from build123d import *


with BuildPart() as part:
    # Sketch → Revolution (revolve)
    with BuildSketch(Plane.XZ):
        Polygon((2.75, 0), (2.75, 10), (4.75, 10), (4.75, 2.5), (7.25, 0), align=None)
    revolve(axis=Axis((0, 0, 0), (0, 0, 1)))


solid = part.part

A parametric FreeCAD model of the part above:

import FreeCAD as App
import Part
import Sketcher
from FreeCAD import Vector
Q = App.Units.Quantity

doc = App.newDocument("Part")
body = doc.addObject("PartDesign::Body", "Body")

# Sketch on XZ plane
sketch1 = body.newObject("Sketcher::SketchObject", "Sketch")
sketch1.AttachmentSupport = (doc.getObject("XZ_Plane"), [""])
sketch1.MapMode = "FlatFace"
sketch1.addGeometry(Part.LineSegment(Vector(2.8, 10, 0), Vector(2.8, 0, 0)), False)
sketch1.addGeometry(Part.LineSegment(Vector(2.8, 0, 0), Vector(7.2, 0, 0)), False)
sketch1.addGeometry(Part.LineSegment(Vector(7.2, 0, 0), Vector(4.8, 2.5, 0)), False)
sketch1.addGeometry(Part.LineSegment(Vector(4.8, 2.5, 0), Vector(4.8, 10, 0)), False)
sketch1.addGeometry(Part.LineSegment(Vector(4.8, 10, 0), Vector(2.8, 10, 0)), False)
sketch1.addConstraint(Sketcher.Constraint("Coincident", 0, 2, 1, 1))
sketch1.addConstraint(Sketcher.Constraint("Coincident", 1, 2, 2, 1))
sketch1.addConstraint(Sketcher.Constraint("Coincident", 2, 2, 3, 1))
sketch1.addConstraint(Sketcher.Constraint("Coincident", 3, 2, 4, 1))
sketch1.addConstraint(Sketcher.Constraint("Coincident", 4, 2, 0, 1))
sketch1.addConstraint(Sketcher.Constraint("Vertical", 0))
sketch1.addConstraint(Sketcher.Constraint("Horizontal", 1))
sketch1.addConstraint(Sketcher.Constraint("Vertical", 3))
sketch1.addConstraint(Sketcher.Constraint("Horizontal", 4))
sketch1.addConstraint(Sketcher.Constraint("PointOnObject", 0, 2, -1))
sketch1.addConstraint(Sketcher.Constraint("DistanceX", 4, 2, 4, 1, 2.0))
sketch1.addConstraint(Sketcher.Constraint("DistanceY", 0, 2, 0, 1, 10.0))
sketch1.addConstraint(Sketcher.Constraint("Angle", 2, Q("135 deg")))
sketch1.addConstraint(Sketcher.Constraint("DistanceX", 1, 1, 1, 2, 4.5))
sketch1.addConstraint(Sketcher.Constraint("DistanceX", -1, 1, 0, 2, 2.75))
revolution = body.newObject("PartDesign::Revolution", "Revolution")
revolution.Profile = sketch1
revolution.ReferenceAxis = (sketch1, ["V_Axis"])
revolution.Angle = 360

doc.recompute()
